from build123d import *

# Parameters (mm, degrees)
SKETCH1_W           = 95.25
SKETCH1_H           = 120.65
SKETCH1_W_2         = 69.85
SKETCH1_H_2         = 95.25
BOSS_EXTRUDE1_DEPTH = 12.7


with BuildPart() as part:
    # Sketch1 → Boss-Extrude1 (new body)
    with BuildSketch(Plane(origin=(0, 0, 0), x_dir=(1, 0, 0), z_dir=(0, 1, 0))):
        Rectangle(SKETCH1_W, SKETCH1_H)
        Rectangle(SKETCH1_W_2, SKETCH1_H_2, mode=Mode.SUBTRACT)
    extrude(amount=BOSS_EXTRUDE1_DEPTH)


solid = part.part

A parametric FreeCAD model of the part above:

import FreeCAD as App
import Part
import Sketcher
Q = App.Units.Quantity


def add_polygon(sketch, points):
    """Adds a closed chain of lines whose ends are joined by coincident constraints."""
    first, n = sketch.GeometryCount, len(points)
    for a, b in zip(points, points[1:] + points[:1]):
        sketch.addGeometry(Part.LineSegment(App.Vector(*a, 0), App.Vector(*b, 0)), False)
    for i in range(n):
        sketch.addConstraint(Sketcher.Constraint("Coincident", first + i, 2, first + (i + 1) % n, 1))

doc = App.newDocument("Part")
params = doc.addObject("Spreadsheet::Sheet", "Params")
for row, (alias, value) in enumerate([
    ("sketch1_width", "3.75 in"),
    ("sketch1_width2", "2.75 in"),
    ("sketch1_height", "4.75 in"),
    ("pad1_length", "0.5 in"),
], start=1):
    params.set(f"A{row}", alias)
    params.set(f"B{row}", "=" + value)
    params.setAlias(f"B{row}", alias)

body = doc.addObject("PartDesign::Body", "Body")

# Sketch on XZ plane
sketch1 = body.newObject("Sketcher::SketchObject", "Sketch")
sketch1.AttachmentSupport = (doc.getObject("XZ_Plane"), [""])
sketch1.MapMode = "FlatFace"
add_polygon(sketch1, [(-48, -60), (-48, 60), (48, 60), (48, -60)])  # lines 0-3
add_polygon(sketch1, [(35, 48), (-35, 48), (-35, -48), (35, -48)])  # lines 4-7
sketch1.addConstraint([
    Sketcher.Constraint("Vertical", 0),
    Sketcher.Constraint("Horizontal", 1),
    Sketcher.Constraint("Vertical", 2),
    Sketcher.Constraint("Horizontal", 3),
    Sketcher.Constraint("Horizontal", 4),
    Sketcher.Constraint("Vertical", 5),
    Sketcher.Constraint("Horizontal", 6),
    Sketcher.Constraint("Vertical", 7),
    Sketcher.Constraint("Symmetric", 0, 2, 2, 2, -1, 1),
    Sketcher.Constraint("Symmetric", 4, 2, 6, 2, -1, 1),
    Sketcher.Constraint("Equal", 3, 5),
    Sketcher.Constraint("DistanceX", 1, 1, 1, 2, Q("3.75 in")),
    Sketcher.Constraint("DistanceX", 4, 2, 4, 1, Q("2.75 in")),
    Sketcher.Constraint("DistanceY", 0, 1, 0, 2, Q("4.75 in")),
])
sketch1.setExpression("Constraints[19]", "Params.sketch1_width")
sketch1.setExpression("Constraints[20]", "Params.sketch1_width2")
sketch1.setExpression("Constraints[21]", "Params.sketch1_height")
pad1 = body.newObject("PartDesign::Pad", "Pad")
pad1.Profile = sketch1
pad1.setExpression("Length", "Params.pad1_length")
pad1.Reversed = True

doc.recompute()
